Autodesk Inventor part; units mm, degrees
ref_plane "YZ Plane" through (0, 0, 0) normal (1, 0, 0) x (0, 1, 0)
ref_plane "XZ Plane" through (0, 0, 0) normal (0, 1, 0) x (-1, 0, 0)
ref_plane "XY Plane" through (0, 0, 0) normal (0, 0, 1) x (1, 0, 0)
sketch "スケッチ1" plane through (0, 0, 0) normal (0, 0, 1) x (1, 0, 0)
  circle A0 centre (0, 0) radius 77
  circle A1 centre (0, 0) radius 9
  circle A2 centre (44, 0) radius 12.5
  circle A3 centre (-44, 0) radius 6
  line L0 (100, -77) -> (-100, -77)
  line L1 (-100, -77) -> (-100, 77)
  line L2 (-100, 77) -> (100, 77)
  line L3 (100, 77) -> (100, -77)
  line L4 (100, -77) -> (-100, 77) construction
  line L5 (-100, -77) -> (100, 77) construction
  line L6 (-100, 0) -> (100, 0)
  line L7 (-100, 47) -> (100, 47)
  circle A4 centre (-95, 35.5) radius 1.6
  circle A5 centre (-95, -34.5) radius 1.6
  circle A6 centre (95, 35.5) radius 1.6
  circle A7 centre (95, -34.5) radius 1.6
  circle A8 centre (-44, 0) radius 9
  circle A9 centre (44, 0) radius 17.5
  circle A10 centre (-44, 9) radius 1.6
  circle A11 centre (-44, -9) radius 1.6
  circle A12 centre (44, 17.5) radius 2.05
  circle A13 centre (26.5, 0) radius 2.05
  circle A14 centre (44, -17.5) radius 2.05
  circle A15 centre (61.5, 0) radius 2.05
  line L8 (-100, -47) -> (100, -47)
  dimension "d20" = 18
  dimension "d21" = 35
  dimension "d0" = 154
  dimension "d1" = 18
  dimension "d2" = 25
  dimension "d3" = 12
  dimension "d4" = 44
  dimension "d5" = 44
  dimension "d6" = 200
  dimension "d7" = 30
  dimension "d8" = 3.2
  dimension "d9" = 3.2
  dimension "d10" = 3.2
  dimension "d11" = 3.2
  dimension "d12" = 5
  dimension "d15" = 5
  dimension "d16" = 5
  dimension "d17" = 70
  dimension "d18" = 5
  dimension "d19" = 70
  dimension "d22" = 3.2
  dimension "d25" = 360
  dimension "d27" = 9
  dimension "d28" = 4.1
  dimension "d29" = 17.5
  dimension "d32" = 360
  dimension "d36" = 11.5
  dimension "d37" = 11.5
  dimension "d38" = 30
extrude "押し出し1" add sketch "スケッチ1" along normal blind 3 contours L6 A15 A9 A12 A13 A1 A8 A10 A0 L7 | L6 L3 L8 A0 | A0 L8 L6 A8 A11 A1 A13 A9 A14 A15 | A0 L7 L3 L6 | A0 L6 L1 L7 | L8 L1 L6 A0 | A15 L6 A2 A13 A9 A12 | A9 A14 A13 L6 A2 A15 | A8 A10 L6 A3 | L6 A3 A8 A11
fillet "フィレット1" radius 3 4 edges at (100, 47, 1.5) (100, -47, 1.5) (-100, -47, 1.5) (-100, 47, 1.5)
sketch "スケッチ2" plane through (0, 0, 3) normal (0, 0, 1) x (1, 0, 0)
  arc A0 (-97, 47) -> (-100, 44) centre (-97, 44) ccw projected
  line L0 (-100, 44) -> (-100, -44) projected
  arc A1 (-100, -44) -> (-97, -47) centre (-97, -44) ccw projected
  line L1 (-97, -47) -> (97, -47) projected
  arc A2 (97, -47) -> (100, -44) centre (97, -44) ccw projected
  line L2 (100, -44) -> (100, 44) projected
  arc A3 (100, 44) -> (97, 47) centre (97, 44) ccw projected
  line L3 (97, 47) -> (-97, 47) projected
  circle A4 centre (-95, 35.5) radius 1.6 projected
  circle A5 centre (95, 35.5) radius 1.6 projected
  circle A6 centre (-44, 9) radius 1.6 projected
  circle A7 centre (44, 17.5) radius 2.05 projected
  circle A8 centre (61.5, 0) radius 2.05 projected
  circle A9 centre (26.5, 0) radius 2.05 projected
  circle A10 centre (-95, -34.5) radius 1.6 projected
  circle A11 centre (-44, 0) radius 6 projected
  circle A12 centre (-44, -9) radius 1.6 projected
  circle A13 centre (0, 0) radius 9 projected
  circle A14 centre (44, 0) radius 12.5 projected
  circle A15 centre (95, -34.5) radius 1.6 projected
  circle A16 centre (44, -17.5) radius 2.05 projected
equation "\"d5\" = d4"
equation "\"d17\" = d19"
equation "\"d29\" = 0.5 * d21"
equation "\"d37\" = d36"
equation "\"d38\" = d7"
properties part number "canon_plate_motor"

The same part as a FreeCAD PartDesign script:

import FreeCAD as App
import Part
import Sketcher

V = App.Vector
Q = App.Units.Quantity


def edges_at(feature, points):
    """Names of the edges that pass closest to the given points."""
    edges = feature.Shape.Edges
    near = lambda p: min(range(len(edges)), key=lambda i: edges[i].distToShape(Part.Vertex(*p))[0])
    return sorted({f"Edge{near(p) + 1}" for p in points})


def add_polygon(sketch, points):
    """Adds a closed chain of lines whose ends are joined by coincident constraints."""
    first, n = sketch.GeometryCount, len(points)
    for a, b in zip(points, points[1:] + points[:1]):
        sketch.addGeometry(Part.LineSegment(App.Vector(*a, 0), App.Vector(*b, 0)), False)
    for i in range(n):
        sketch.addConstraint(Sketcher.Constraint("Coincident", first + i, 2, first + (i + 1) % n, 1))

doc = App.newDocument("Part")
params = doc.addObject("Spreadsheet::Sheet", "Params")
for row, (alias, value) in enumerate([
    ("sketch1_diameter", "18 mm"),
    ("sketch1_diameter2", "25 mm"),
    ("sketch1_diameter3", "12 mm"),
    ("sketch1_diameter4", "4.1 mm"),
    ("sketch1_diameter5", "3.2 mm"),
    ("pad1_length", "3 mm"),
    ("fillet_radius", "3 mm"),
], start=1):
    params.set(f"A{row}", alias)
    params.set(f"B{row}", "=" + value)
    params.setAlias(f"B{row}", alias)

body = doc.addObject("PartDesign::Body", "Body")

sketch1 = body.newObject("Sketcher::SketchObject", "Sketch")
sketch1.AttachmentSupport = (doc.getObject("XY_Plane"), [""])
sketch1.MapMode = "FlatFace"
add_polygon(sketch1, [(-100, 47), (-100, -47), (100, -47), (100, 47)])
sketch1.addGeometry(Part.Circle(V(61.5, 0, 0), V(0, 0, 1), 2), False)
sketch1.addGeometry(Part.Circle(V(44, 17.5, 0), V(0, 0, 1), 2), False)
sketch1.addGeometry(Part.Circle(V(26.5, 0, 0), V(0, 0, 1), 2), False)
sketch1.addGeometry(Part.Circle(V(0, 0, 0), V(0, 0, 1), 9), False)
sketch1.addGeometry(Part.Circle(V(-44, 9, 0), V(0, 0, 1), 1.6), False)
sketch1.addGeometry(Part.Circle(V(44, -17.5, 0), V(0, 0, 1), 2), False)
sketch1.addGeometry(Part.Circle(V(-44, -9, 0), V(0, 0, 1), 1.6), False)
sketch1.addGeometry(Part.Circle(V(44, 0, 0), V(0, 0, 1), 12.5), False)
sketch1.addGeometry(Part.Circle(V(-44, 0, 0), V(0, 0, 1), 6), False)
sketch1.addGeometry(Part.Circle(V(-95, 35.5, 0), V(0, 0, 1), 1.6), False)
sketch1.addGeometry(Part.Circle(V(95, 35.5, 0), V(0, 0, 1), 1.6), False)
sketch1.addGeometry(Part.Circle(V(95, -34.5, 0), V(0, 0, 1), 1.6), False)
sketch1.addGeometry(Part.Circle(V(-95, -34.5, 0), V(0, 0, 1), 1.6), False)
sketch1.addConstraint([
    Sketcher.Constraint("Vertical", 0),
    Sketcher.Constraint("Horizontal", 1),
    Sketcher.Constraint("Vertical", 2),
    Sketcher.Constraint("Horizontal", 3),
    Sketcher.Constraint("Coincident", 7, 3, -1, 1),
    Sketcher.Constraint("Equal", 4, 5),
    Sketcher.Constraint("Equal", 5, 6),
    Sketcher.Constraint("Equal", 6, 9),
    Sketcher.Constraint("Equal", 8, 10),
    Sketcher.Constraint("Equal", 10, 13),
    Sketcher.Constraint("Equal", 13, 14),
    Sketcher.Constraint("Equal", 14, 15),
    Sketcher.Constraint("Equal", 15, 16),
    Sketcher.Constraint("Symmetric", 11, 3, 12, 3, -1, 1),
    Sketcher.Constraint("Symmetric", 0, 2, 2, 2, -1, 1),
    Sketcher.Constraint("Symmetric", 13, 3, 14, 3, -2),
    Sketcher.Constraint("Symmetric", 15, 3, 16, 3, -2),
    Sketcher.Constraint("Symmetric", 5, 3, 9, 3, -1),
    Sketcher.Constraint("Symmetric", 8, 3, 10, 3, -1),
    Sketcher.Constraint("PointOnObject", 4, 3, -1),
    Sketcher.Constraint("PointOnObject", 6, 3, -1),
    Sketcher.Constraint("PointOnObject", 11, 3, -1),
    Sketcher.Constraint("Vertical", 9, 3, 11, 3),
    Sketcher.Constraint("Vertical", 10, 3, 12, 3),
    Sketcher.Constraint("Vertical", 14, 3, 15, 3),
    Sketcher.Constraint("Diameter", 7, Q("18 mm")),
    Sketcher.Constraint("Diameter", 11, Q("25 mm")),
    Sketcher.Constraint("Diameter", 12, Q("12 mm")),
    Sketcher.Constraint("Diameter", 4, Q("4.1 mm")),
    Sketcher.Constraint("Diameter", 8, Q("3.2 mm")),
    Sketcher.Constraint("DistanceX", 1, 1, 1, 2, Q("200 mm")),
    Sketcher.Constraint("DistanceX", -1, 1, 5, 3, Q("44 mm")),
    Sketcher.Constraint("DistanceY", -1, 1, 8, 3, Q("9 mm")),
    Sketcher.Constraint("DistanceX", 6, 3, 4, 3, Q("35 mm")),
    Sketcher.Constraint("DistanceY", 9, 3, 5, 3, Q("35 mm")),
    Sketcher.Constraint("DistanceY", 5, 3, 14, 3, Q("18 mm")),
    Sketcher.Constraint("DistanceY", 15, 3, 14, 3, Q("70 mm")),
    Sketcher.Constraint("DistanceX", 0, 2, 16, 3, Q("5 mm")),
    Sketcher.Constraint("DistanceX", 5, 3, 4, 3, Q("17.5 mm")),
    Sketcher.Constraint("DistanceY", 14, 3, 2, 2, Q("11.5 mm")),
])
sketch1.setExpression("Constraints[29]", "Params.sketch1_diameter")
sketch1.setExpression("Constraints[30]", "Params.sketch1_diameter2")
sketch1.setExpression("Constraints[31]", "Params.sketch1_diameter3")
sketch1.setExpression("Constraints[32]", "Params.sketch1_diameter4")
sketch1.setExpression("Constraints[33]", "Params.sketch1_diameter5")
pad1 = body.newObject("PartDesign::Pad", "Pad")
pad1.Profile = sketch1
pad1.setExpression("Length", "Params.pad1_length")
doc.recompute()

fillet = body.newObject("PartDesign::Fillet", "Fillet")
fillet.Base = (pad1, edges_at(pad1, [
    (100, 47, 1.5),
    (100, -47, 1.5),
    (-100, -47, 1.5),
    (-100, 47, 1.5),
]))
fillet.setExpression("Radius", "Params.fillet_radius")

doc.recompute()
